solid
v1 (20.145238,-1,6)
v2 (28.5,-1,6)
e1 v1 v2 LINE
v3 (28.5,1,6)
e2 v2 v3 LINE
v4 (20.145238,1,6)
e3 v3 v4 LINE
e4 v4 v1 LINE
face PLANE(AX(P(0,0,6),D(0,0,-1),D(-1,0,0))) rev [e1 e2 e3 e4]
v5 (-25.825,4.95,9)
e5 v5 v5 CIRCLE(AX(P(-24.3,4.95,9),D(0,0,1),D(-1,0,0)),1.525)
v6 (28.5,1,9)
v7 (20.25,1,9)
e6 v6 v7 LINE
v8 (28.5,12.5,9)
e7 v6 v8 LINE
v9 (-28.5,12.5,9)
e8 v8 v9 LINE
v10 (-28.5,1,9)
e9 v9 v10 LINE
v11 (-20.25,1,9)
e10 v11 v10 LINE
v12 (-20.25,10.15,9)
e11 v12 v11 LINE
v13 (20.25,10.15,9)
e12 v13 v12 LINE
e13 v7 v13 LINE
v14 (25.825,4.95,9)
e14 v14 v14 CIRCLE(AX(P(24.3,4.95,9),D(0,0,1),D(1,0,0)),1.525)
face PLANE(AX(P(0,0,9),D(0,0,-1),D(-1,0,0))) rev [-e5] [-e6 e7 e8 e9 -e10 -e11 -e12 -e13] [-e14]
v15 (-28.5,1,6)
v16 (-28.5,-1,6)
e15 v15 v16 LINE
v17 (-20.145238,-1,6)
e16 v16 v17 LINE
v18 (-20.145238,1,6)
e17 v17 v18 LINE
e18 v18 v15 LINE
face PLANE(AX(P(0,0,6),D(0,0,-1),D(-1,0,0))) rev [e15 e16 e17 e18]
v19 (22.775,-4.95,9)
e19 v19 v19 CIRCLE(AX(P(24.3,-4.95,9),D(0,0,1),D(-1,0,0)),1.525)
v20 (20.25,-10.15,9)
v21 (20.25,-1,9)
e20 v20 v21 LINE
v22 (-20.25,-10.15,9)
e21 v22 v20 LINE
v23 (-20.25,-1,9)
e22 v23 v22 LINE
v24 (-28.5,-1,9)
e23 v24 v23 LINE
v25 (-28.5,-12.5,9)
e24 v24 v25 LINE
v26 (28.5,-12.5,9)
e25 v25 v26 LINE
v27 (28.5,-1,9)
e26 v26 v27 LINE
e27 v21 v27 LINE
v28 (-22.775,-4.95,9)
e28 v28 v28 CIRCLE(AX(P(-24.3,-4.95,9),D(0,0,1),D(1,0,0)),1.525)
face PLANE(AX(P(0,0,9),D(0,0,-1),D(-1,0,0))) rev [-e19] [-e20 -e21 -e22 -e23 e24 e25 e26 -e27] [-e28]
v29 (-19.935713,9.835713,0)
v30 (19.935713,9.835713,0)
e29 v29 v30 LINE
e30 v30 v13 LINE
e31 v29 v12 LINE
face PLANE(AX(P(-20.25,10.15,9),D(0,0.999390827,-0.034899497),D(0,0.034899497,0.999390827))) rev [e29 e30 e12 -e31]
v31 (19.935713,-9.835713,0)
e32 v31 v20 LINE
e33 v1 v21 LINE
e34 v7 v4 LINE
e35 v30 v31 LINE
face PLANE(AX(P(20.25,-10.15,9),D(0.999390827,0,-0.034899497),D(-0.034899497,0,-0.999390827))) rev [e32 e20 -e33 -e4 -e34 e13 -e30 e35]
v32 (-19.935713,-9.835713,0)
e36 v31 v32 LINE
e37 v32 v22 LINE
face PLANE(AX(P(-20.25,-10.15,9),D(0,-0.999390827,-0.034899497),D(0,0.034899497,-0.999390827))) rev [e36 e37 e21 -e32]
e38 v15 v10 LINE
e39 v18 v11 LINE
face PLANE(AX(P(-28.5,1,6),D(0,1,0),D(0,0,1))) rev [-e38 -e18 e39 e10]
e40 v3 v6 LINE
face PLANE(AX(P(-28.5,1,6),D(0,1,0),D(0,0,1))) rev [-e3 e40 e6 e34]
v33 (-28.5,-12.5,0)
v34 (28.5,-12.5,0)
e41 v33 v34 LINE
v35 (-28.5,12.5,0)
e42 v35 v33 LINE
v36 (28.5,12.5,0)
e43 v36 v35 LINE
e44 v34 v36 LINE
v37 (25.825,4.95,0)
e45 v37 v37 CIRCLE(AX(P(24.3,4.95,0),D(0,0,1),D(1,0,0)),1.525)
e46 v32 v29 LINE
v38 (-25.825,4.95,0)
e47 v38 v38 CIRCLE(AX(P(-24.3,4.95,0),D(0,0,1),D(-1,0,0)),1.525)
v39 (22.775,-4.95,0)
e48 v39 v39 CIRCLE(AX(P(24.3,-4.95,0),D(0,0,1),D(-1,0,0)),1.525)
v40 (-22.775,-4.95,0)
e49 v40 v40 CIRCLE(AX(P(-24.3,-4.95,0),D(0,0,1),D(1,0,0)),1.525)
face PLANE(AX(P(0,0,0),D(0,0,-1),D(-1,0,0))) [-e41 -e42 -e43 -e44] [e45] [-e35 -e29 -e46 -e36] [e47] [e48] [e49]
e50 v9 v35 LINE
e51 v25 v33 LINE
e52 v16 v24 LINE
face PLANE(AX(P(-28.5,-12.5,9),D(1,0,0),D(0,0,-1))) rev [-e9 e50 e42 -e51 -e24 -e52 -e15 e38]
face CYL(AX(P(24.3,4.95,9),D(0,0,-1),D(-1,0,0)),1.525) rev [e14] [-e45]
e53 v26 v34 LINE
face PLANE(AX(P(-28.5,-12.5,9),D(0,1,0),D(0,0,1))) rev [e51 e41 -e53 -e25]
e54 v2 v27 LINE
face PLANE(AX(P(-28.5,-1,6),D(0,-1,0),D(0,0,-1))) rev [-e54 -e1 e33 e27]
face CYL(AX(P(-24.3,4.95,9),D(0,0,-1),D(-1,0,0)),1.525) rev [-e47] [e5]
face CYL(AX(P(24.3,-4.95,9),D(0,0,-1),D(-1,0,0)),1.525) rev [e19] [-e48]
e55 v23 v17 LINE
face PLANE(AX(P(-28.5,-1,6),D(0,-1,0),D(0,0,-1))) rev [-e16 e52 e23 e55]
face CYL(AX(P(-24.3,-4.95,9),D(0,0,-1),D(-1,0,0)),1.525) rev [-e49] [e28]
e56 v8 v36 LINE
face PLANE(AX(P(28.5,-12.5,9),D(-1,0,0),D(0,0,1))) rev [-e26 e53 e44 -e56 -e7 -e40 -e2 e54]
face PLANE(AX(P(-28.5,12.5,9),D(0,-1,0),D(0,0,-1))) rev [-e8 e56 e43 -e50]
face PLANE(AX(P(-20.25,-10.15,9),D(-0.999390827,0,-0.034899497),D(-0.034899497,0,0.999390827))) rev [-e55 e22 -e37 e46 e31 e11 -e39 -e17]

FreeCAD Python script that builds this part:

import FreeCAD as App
import Part
import Sketcher
from FreeCAD import Vector


def faces_at(feature, points):
    """Names of the faces that lie closest to the given points."""
    faces = feature.Shape.Faces
    near = lambda p: min(range(len(faces)), key=lambda i: faces[i].distToShape(Part.Vertex(*p))[0])
    return sorted({f"Face{near(p) + 1}" for p in points})

doc = App.newDocument("Part")
params = doc.addObject("Spreadsheet::Sheet", "Params")
for row, (alias, value) in enumerate([
    ("sketch1_diameter", "3.05 mm"),
    ("sketch1_width", "57 mm"),
    ("sketch1_height", "25 mm"),
    ("pad1_length", "9 mm"),
    ("sketch2_width", "57 mm"),
    ("sketch2_height", "2 mm"),
    ("pocket1_length", "3 mm"),
    ("sketch3_width", "40.5 mm"),
    ("sketch3_height", "20.3 mm"),
    ("pad2_length", "15 mm"),
    ("draft_angle", "2 deg"),
], start=1):
    params.set(f"A{row}", alias)
    params.set(f"B{row}", "=" + value)
    params.setAlias(f"B{row}", alias)

body = doc.addObject("PartDesign::Body", "Body")

sketch1 = doc.addObject("Sketcher::SketchObject", "Sketch")
body.addObject(sketch1)
sketch1.AttachmentSupport = (doc.XY_Plane, [""])
sketch1.MapMode = "FlatFace"
sketch1.addGeometry(Part.LineSegment(Vector(-28.5, 12.5, 0), Vector(-28.5, -12.5, 0)), False)
sketch1.addGeometry(Part.LineSegment(Vector(-28.5, -12.5, 0), Vector(28.5, -12.5, 0)), False)
sketch1.addGeometry(Part.LineSegment(Vector(28.5, -12.5, 0), Vector(28.5, 12.5, 0)), False)
sketch1.addGeometry(Part.LineSegment(Vector(28.5, 12.5, 0), Vector(-28.5, 12.5, 0)), False)
sketch1.addGeometry(Part.Circle(Vector(-24.3, -5, 0), Vector(0, 0, 1), 1.5), False)
sketch1.addGeometry(Part.Circle(Vector(24.3, -5, 0), Vector(0, 0, 1), 1.5), False)
sketch1.addGeometry(Part.Circle(Vector(-24.3, 5, 0), Vector(0, 0, 1), 1.5), False)
sketch1.addGeometry(Part.Circle(Vector(24.3, 5, 0), Vector(0, 0, 1), 1.5), False)
sketch1.addConstraint(Sketcher.Constraint("Coincident", 0, 2, 1, 1))
sketch1.addConstraint(Sketcher.Constraint("Coincident", 1, 2, 2, 1))
sketch1.addConstraint(Sketcher.Constraint("Coincident", 2, 2, 3, 1))
sketch1.addConstraint(Sketcher.Constraint("Coincident", 3, 2, 0, 1))
sketch1.addConstraint(Sketcher.Constraint("Vertical", 0))
sketch1.addConstraint(Sketcher.Constraint("Horizontal", 1))
sketch1.addConstraint(Sketcher.Constraint("Vertical", 2))
sketch1.addConstraint(Sketcher.Constraint("Horizontal", 3))
sketch1.addConstraint(Sketcher.Constraint("Equal", 4, 5))
sketch1.addConstraint(Sketcher.Constraint("Equal", 5, 6))
sketch1.addConstraint(Sketcher.Constraint("Equal", 6, 7))
sketch1.addConstraint(Sketcher.Constraint("Symmetric", 5, 3, 6, 3, -1, 1))
sketch1.addConstraint(Sketcher.Constraint("Symmetric", 4, 3, 7, 3, -1, 1))
sketch1.addConstraint(Sketcher.Constraint("Symmetric", 0, 2, 2, 2, -1, 1))
sketch1.addConstraint(Sketcher.Constraint("Symmetric", 4, 3, 5, 3, -2))
sketch1.addConstraint(Sketcher.Constraint("Diameter", 4, 3.05))
sketch1.addConstraint(Sketcher.Constraint("DistanceX", 1, 1, 1, 2, 57.0))
sketch1.addConstraint(Sketcher.Constraint("DistanceY", 0, 2, 0, 1, 25.0))
sketch1.addConstraint(Sketcher.Constraint("DistanceX", 4, 3, -1, 1, 24.3))
sketch1.addConstraint(Sketcher.Constraint("DistanceY", 4, 3, 6, 3, 9.9))
sketch1.setExpression("Constraints[15]", "Params.sketch1_diameter")
sketch1.setExpression("Constraints[16]", "Params.sketch1_width")
sketch1.setExpression("Constraints[17]", "Params.sketch1_height")
pad1 = doc.addObject("PartDesign::Pad", "Pad")
body.addObject(pad1)
pad1.Profile = sketch1
pad1.setExpression("Length", "Params.pad1_length")

sketch2 = doc.addObject("Sketcher::SketchObject", "Sketch001")
body.addObject(sketch2)
sketch2.AttachmentSupport = (doc.XY_Plane, [""])
sketch2.MapMode = "FlatFace"
sketch2.AttachmentOffset = App.Placement(Vector(0, 0, 9), App.Rotation())
sketch2.addGeometry(Part.LineSegment(Vector(-28.5, 1, 0), Vector(-28.5, -1, 0)), False)
sketch2.addGeometry(Part.LineSegment(Vector(-28.5, -1, 0), Vector(28.5, -1, 0)), False)
sketch2.addGeometry(Part.LineSegment(Vector(28.5, -1, 0), Vector(28.5, 1, 0)), False)
sketch2.addGeometry(Part.LineSegment(Vector(28.5, 1, 0), Vector(-28.5, 1, 0)), False)
sketch2.addConstraint(Sketcher.Constraint("Coincident", 0, 2, 1, 1))
sketch2.addConstraint(Sketcher.Constraint("Coincident", 1, 2, 2, 1))
sketch2.addConstraint(Sketcher.Constraint("Coincident", 2, 2, 3, 1))
sketch2.addConstraint(Sketcher.Constraint("Coincident", 3, 2, 0, 1))
sketch2.addConstraint(Sketcher.Constraint("Vertical", 0))
sketch2.addConstraint(Sketcher.Constraint("Horizontal", 1))
sketch2.addConstraint(Sketcher.Constraint("Vertical", 2))
sketch2.addConstraint(Sketcher.Constraint("Horizontal", 3))
sketch2.addConstraint(Sketcher.Constraint("Symmetric", 0, 2, 2, 2, -1, 1))
sketch2.addConstraint(Sketcher.Constraint("DistanceX", 1, 1, 1, 2, 57.0))
sketch2.addConstraint(Sketcher.Constraint("DistanceY", 0, 2, 0, 1, 2.0))
sketch2.setExpression("Constraints[9]", "Params.sketch2_width")
sketch2.setExpression("Constraints[10]", "Params.sketch2_height")
pocket1 = doc.addObject("PartDesign::Pocket", "Pocket")
body.addObject(pocket1)
pocket1.Profile = sketch2
pocket1.setExpression("Length", "Params.pocket1_length")
body2 = doc.addObject("PartDesign::Body", "Body001")

sketch3 = doc.addObject("Sketcher::SketchObject", "Sketch002")
body2.addObject(sketch3)
sketch3.AttachmentSupport = (doc.getObject("XY_Plane001"), [""])
sketch3.MapMode = "FlatFace"
sketch3.AttachmentOffset = App.Placement(Vector(0, 0, 9), App.Rotation())
sketch3.addGeometry(Part.LineSegment(Vector(-20, 10, 0), Vector(-20, -10, 0)), False)
sketch3.addGeometry(Part.LineSegment(Vector(-20, -10, 0), Vector(20, -10, 0)), False)
sketch3.addGeometry(Part.LineSegment(Vector(20, -10, 0), Vector(20, 10, 0)), False)
sketch3.addGeometry(Part.LineSegment(Vector(20, 10, 0), Vector(-20, 10, 0)), False)
sketch3.addConstraint(Sketcher.Constraint("Coincident", 0, 2, 1, 1))
sketch3.addConstraint(Sketcher.Constraint("Coincident", 1, 2, 2, 1))
sketch3.addConstraint(Sketcher.Constraint("Coincident", 2, 2, 3, 1))
sketch3.addConstraint(Sketcher.Constraint("Coincident", 3, 2, 0, 1))
sketch3.addConstraint(Sketcher.Constraint("Vertical", 0))
sketch3.addConstraint(Sketcher.Constraint("Horizontal", 1))
sketch3.addConstraint(Sketcher.Constraint("Vertical", 2))
sketch3.addConstraint(Sketcher.Constraint("Horizontal", 3))
sketch3.addConstraint(Sketcher.Constraint("Symmetric", 0, 2, 2, 2, -1, 1))
sketch3.addConstraint(Sketcher.Constraint("DistanceX", 1, 1, 1, 2, 40.5))
sketch3.addConstraint(Sketcher.Constraint("DistanceY", 0, 2, 0, 1, 20.3))
sketch3.setExpression("Constraints[9]", "Params.sketch3_width")
sketch3.setExpression("Constraints[10]", "Params.sketch3_height")
pad2 = doc.addObject("PartDesign::Pad", "Pad001")
body2.addObject(pad2)
pad2.Profile = sketch3
pad2.setExpression("Length", "Params.pad2_length")
pad2.Reversed = True
doc.recompute()

datumplane = doc.addObject("PartDesign::Plane", "DatumPlane")
body2.addObject(datumplane)
datumplane.AttachmentSupport = (doc.getObject("XY_Plane001"), [""])
datumplane.MapMode = "FlatFace"
datumplane.AttachmentOffset = App.Placement(Vector(0, 0, 9), App.Rotation())
draft = doc.addObject("PartDesign::Draft", "Draft")
body2.addObject(draft)
draft.Base = (pad2, faces_at(pad2, [
    (0, -10.15, 1.5),
    (20.25, 0, 1.5),
    (0, 10.15, 1.5),
    (-20.25, 0, 1.5),
]))
draft.NeutralPlane = (datumplane, [""])
draft.setExpression("Angle", "Params.draft_angle")
draft.Reversed = True
doc.recompute()

boolean = doc.addObject("PartDesign::Boolean", "Boolean")
body.addObject(boolean)
boolean.Type = "Cut"
boolean.addObjects([body2])

doc.recompute()
